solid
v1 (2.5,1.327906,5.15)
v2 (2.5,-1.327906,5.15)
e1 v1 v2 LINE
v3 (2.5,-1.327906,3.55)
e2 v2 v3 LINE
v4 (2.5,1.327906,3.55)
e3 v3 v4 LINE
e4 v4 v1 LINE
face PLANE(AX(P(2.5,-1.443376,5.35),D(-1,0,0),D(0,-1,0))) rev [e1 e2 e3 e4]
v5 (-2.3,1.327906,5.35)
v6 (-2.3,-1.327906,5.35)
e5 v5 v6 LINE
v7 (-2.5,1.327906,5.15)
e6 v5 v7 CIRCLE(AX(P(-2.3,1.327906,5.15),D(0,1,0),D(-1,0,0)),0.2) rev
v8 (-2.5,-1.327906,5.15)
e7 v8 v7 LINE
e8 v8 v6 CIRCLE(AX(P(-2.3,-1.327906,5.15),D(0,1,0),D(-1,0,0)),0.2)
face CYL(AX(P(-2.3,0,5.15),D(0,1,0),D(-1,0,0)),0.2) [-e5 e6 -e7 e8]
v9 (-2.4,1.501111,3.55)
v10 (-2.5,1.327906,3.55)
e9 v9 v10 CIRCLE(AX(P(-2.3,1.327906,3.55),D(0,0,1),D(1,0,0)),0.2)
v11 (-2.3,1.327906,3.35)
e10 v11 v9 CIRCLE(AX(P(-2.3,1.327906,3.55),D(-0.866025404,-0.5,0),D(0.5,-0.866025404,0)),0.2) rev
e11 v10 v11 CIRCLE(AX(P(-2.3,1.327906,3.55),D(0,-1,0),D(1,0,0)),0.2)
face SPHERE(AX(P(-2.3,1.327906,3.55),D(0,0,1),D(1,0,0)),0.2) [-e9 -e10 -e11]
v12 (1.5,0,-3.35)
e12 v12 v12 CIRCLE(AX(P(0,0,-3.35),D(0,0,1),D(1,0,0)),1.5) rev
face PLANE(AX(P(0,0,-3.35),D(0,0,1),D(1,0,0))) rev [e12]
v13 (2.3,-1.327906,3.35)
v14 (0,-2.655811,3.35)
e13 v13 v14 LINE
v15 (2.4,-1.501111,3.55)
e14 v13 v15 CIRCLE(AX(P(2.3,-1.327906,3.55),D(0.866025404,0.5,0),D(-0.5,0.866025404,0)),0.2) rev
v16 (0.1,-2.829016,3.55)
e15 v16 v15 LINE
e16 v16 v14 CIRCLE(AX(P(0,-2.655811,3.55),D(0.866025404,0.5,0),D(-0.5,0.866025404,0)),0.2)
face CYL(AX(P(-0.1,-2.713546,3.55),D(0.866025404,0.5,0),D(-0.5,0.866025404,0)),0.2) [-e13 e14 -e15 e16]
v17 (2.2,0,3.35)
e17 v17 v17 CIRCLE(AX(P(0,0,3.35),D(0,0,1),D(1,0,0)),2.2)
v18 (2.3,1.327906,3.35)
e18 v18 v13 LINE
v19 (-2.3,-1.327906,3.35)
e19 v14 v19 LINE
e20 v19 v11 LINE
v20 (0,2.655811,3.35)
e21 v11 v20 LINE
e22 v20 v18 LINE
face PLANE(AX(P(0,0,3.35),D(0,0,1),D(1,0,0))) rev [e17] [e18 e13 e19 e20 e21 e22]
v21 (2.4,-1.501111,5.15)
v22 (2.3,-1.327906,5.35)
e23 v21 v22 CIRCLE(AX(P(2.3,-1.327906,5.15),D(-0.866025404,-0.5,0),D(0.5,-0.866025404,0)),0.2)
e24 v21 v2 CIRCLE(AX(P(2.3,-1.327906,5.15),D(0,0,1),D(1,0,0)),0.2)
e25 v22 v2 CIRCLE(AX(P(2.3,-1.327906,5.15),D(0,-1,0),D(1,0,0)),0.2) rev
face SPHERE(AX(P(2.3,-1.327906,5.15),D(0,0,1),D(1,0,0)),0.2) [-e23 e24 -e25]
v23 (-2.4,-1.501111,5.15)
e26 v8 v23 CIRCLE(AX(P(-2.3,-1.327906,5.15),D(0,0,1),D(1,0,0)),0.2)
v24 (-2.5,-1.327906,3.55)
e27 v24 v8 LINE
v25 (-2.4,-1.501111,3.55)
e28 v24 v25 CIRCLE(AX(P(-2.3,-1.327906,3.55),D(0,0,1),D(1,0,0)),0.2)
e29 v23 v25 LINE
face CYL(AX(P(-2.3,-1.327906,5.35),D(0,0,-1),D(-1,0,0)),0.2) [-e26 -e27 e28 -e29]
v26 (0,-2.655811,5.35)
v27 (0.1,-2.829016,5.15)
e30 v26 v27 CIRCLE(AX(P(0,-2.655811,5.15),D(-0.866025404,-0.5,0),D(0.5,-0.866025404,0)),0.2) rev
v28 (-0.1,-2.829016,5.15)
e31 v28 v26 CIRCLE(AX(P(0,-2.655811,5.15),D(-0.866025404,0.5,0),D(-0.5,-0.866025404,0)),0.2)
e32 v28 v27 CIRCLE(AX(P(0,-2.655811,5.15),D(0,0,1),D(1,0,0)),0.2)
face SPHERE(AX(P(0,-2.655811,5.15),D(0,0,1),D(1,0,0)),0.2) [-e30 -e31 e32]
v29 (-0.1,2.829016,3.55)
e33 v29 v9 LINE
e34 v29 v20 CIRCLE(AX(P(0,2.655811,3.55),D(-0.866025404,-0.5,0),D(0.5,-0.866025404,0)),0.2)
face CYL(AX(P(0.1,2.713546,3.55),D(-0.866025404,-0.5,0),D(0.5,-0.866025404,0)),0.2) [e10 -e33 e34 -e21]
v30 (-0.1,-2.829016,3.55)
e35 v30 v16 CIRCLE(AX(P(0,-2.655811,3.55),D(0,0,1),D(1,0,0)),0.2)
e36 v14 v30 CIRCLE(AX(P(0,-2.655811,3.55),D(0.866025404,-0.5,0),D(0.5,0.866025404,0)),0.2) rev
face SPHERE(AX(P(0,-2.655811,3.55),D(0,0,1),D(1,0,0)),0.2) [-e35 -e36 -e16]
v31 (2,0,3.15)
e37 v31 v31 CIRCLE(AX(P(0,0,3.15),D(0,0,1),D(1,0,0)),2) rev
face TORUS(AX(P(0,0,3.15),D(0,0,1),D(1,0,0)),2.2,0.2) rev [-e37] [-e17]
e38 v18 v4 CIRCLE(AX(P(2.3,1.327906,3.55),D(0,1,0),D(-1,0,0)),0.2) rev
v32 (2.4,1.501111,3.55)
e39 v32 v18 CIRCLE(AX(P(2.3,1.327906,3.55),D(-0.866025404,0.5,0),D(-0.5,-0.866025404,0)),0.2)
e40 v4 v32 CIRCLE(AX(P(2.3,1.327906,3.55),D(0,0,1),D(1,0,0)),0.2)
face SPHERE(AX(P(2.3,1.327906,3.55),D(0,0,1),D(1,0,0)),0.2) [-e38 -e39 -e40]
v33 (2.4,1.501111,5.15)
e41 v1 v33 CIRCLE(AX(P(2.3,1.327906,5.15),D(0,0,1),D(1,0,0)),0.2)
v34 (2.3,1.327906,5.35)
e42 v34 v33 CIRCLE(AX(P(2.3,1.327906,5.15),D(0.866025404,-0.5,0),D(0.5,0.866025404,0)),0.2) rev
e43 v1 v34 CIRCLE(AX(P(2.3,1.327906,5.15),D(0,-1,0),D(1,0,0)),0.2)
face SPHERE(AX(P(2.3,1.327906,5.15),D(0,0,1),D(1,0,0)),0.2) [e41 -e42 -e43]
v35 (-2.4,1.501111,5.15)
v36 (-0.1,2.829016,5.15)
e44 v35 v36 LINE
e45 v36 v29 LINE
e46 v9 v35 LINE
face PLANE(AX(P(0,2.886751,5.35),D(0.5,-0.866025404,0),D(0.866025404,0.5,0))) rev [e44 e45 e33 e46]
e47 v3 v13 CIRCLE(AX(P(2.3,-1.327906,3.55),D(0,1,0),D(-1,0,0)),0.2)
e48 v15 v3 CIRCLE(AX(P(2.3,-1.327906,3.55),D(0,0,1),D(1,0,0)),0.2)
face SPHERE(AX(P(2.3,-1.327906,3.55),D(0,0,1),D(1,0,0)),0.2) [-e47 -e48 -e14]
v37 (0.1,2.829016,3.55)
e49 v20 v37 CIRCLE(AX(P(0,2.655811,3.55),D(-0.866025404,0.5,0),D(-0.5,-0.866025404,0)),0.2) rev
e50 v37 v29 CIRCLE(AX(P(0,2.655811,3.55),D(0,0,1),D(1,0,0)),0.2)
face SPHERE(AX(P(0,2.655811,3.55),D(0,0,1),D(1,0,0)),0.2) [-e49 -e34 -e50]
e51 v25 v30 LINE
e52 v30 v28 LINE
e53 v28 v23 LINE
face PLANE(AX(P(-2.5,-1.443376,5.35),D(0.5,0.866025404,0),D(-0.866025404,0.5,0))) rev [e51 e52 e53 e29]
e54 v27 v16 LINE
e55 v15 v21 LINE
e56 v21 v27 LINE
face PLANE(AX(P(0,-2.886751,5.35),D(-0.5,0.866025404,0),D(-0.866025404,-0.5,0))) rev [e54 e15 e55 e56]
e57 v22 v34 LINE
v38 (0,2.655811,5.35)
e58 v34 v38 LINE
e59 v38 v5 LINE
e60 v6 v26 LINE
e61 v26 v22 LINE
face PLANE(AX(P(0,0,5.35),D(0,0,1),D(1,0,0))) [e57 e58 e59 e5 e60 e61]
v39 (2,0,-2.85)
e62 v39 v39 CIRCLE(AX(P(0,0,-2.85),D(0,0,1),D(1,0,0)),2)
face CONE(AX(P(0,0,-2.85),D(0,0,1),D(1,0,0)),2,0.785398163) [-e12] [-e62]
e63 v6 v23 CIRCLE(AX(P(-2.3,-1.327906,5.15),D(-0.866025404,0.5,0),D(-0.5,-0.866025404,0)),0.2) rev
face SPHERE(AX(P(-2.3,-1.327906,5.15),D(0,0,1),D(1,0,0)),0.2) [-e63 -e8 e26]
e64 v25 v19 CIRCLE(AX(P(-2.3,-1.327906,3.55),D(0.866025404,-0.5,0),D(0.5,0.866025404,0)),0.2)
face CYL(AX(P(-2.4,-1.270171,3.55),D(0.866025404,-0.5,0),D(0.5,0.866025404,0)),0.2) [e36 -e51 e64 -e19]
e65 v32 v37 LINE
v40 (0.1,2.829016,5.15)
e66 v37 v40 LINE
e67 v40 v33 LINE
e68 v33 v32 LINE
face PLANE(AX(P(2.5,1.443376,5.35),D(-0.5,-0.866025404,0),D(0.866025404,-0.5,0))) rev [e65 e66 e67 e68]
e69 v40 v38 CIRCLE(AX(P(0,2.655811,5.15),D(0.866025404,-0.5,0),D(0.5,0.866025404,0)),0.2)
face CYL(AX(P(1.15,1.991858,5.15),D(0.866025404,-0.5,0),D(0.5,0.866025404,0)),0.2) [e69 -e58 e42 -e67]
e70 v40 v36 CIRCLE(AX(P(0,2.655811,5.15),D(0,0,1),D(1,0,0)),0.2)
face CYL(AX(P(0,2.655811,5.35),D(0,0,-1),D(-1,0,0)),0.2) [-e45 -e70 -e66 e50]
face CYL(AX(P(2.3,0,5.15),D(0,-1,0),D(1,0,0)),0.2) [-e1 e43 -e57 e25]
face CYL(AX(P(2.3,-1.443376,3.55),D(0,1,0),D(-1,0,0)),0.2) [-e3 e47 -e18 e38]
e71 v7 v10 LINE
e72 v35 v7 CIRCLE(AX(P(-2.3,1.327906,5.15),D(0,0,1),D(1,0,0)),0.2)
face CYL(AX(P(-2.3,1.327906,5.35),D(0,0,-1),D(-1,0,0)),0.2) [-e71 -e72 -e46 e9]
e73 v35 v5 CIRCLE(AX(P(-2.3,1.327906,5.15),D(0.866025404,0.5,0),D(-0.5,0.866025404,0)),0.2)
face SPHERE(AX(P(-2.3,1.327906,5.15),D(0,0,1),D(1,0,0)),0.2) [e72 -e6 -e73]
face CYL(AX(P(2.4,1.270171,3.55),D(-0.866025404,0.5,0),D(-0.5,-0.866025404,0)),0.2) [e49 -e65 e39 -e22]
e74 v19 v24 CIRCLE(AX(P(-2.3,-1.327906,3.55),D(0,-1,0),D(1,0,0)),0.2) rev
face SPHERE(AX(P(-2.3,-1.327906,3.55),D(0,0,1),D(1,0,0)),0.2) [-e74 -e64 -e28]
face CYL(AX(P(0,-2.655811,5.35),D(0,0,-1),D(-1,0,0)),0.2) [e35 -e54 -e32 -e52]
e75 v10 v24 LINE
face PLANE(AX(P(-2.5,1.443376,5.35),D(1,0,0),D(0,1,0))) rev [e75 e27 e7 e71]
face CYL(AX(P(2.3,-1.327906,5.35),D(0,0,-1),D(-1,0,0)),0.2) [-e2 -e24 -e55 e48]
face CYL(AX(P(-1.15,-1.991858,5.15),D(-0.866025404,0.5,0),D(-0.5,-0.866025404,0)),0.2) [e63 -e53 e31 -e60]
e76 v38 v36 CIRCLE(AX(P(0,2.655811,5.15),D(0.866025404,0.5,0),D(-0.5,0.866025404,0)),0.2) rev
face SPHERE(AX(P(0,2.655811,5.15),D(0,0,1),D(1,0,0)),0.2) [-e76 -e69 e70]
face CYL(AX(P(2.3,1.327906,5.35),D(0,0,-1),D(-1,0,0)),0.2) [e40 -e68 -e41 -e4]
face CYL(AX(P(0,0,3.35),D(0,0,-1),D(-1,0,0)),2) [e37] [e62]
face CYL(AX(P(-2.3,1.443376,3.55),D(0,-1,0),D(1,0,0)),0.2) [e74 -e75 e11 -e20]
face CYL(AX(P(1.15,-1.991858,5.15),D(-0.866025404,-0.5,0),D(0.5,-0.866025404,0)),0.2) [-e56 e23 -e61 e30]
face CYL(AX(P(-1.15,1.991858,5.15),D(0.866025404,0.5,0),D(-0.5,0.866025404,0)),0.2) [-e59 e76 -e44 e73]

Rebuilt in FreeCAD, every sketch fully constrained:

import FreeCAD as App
import Part
import Sketcher
from FreeCAD import Vector
Q = App.Units.Quantity


def edges_at(feature, points):
    """Names of the edges that pass closest to the given points."""
    edges = feature.Shape.Edges
    near = lambda p: min(range(len(edges)), key=lambda i: edges[i].distToShape(Part.Vertex(*p))[0])
    return sorted({f"Edge{near(p) + 1}" for p in points})

doc = App.newDocument("Part")
params = doc.addObject("Spreadsheet::Sheet", "Params")
for row, (alias, value) in enumerate([
    ("sketch1_diameter", "4 mm"),
    ("pad1_length", "6.7 mm"),
    ("pad2_length", "2 mm"),
    ("fillet_radius", "0.2 mm"),
    ("fillet2_radius", "0.2 mm"),
    ("chamfer_size", "0.5 mm"),
], start=1):
    params.set(f"A{row}", alias)
    params.set(f"B{row}", "=" + value)
    params.setAlias(f"B{row}", alias)

body = doc.addObject("PartDesign::Body", "Body")

sketch1 = body.newObject("Sketcher::SketchObject", "Sketch")
sketch1.AttachmentSupport = (doc.getObject("XY_Plane"), [""])
sketch1.MapMode = "FlatFace"
sketch1.addGeometry(Part.Circle(Vector(0, 0, 0), Vector(0, 0, 1), 2), False)
sketch1.addConstraint([
    Sketcher.Constraint("Coincident", 0, 3, -1, 1),
    Sketcher.Constraint("Diameter", 0, Q("4 mm")),
])
sketch1.setExpression("Constraints[1]", "Params.sketch1_diameter")
pad1 = body.newObject("PartDesign::Pad", "Pad")
pad1.Profile = sketch1
pad1.setExpression("Length", "Params.pad1_length")
pad1.Midplane = True

sketch2 = body.newObject("Sketcher::SketchObject", "Sketch001")
sketch2.AttachmentSupport = (doc.getObject("XY_Plane"), [""])
sketch2.MapMode = "FlatFace"
sketch2.AttachmentOffset = App.Placement(Vector(0, 0, 3.35), App.Rotation())
sketch2.addGeometry([
    Part.LineSegment(Vector(0, -2.886751, 0), Vector(2.5, -1.443376, 0)),
    Part.LineSegment(Vector(2.5, -1.443376, 0), Vector(2.5, 1.443376, 0)),
    Part.LineSegment(Vector(2.5, 1.443376, 0), Vector(0, 2.886751, 0)),
    Part.LineSegment(Vector(0, 2.886751, 0), Vector(-2.5, 1.443376, 0)),
    Part.LineSegment(Vector(-2.5, 1.443376, 0), Vector(-2.5, -1.443376, 0)),
    Part.LineSegment(Vector(-2.5, -1.443376, 0), Vector(0, -2.886751, 0)),
], False)
sketch2.addConstraint([
    Sketcher.Constraint("Coincident", 0, 2, 1, 1),
    Sketcher.Constraint("Coincident", 1, 2, 2, 1),
    Sketcher.Constraint("Coincident", 2, 2, 3, 1),
    Sketcher.Constraint("Coincident", 3, 2, 4, 1),
    Sketcher.Constraint("Coincident", 4, 2, 5, 1),
    Sketcher.Constraint("Coincident", 5, 2, 0, 1),
    Sketcher.Constraint("Vertical", 1),
    Sketcher.Constraint("Vertical", 4),
    Sketcher.Constraint("Symmetric", 0, 2, 3, 2, -1, 1),
    Sketcher.Constraint("Symmetric", 2, 2, 5, 2, -1, 1),
    Sketcher.Constraint("PointOnObject", 2, 2, -2),
    Sketcher.Constraint("Parallel", 2, 5),
    Sketcher.Constraint("Horizontal", 1, 2, 3, 2),
    Sketcher.Constraint("Angle", 0, Q("30 deg")),
    Sketcher.Constraint("DistanceX", 3, 2, 1, 2, Q("5 mm")),
    Sketcher.Constraint("DistanceY", 1, 1, 1, 2, Q("2.886751 mm")),
])
pad2 = body.newObject("PartDesign::Pad", "Pad001")
pad2.Profile = sketch2
pad2.setExpression("Length", "Params.pad2_length")
doc.recompute()

fillet = body.newObject("PartDesign::Fillet", "Fillet")
fillet.Base = (pad2, edges_at(pad2, [
    (-2, 0, 3.35),
    (-1.25, -2.165, 3.35),
    (1.25, -2.165, 3.35),
    (2.5, 0, 3.35),
    (1.25, 2.165, 3.35),
    (-1.25, 2.165, 3.35),
    (-2.5, 0, 3.35),
    (-1.25, -2.165, 5.35),
    (1.25, -2.165, 5.35),
    (2.5, 0, 5.35),
    (1.25, 2.165, 5.35),
    (-1.25, 2.165, 5.35),
    (-2.5, 0, 5.35),
]))
fillet.setExpression("Radius", "Params.fillet_radius")
doc.recompute()

fillet2 = body.newObject("PartDesign::Fillet", "Fillet001")
fillet2.Base = (fillet, edges_at(fillet, [
    (-2.5, -1.443, 4.35),
    (-2.5, 1.443, 4.35),
    (0, 2.887, 4.35),
    (2.5, 1.443, 4.35),
    (2.5, -1.443, 4.35),
    (0, -2.887, 4.35),
    (2.436, 1.407, 5.296),
    (2.436, -1.407, 5.296),
    (0, 2.813, 5.296),
    (0, -2.813, 5.296),
    (-2.436, 1.407, 5.296),
    (-2.436, -1.407, 5.296),
    (-2.436, 1.407, 3.404),
    (0, 2.813, 3.404),
    (-2.436, -1.407, 3.404),
    (2.436, 1.407, 3.404),
    (0, -2.813, 3.404),
    (2.436, -1.407, 3.404),
]))
fillet2.setExpression("Radius", "Params.fillet2_radius")
doc.recompute()

chamfer = body.newObject("PartDesign::Chamfer", "Chamfer")
chamfer.Base = (fillet2, edges_at(fillet2, [(-2, 0, -3.35)]))
chamfer.setExpression("Size", "Params.chamfer_size")

doc.recompute()
